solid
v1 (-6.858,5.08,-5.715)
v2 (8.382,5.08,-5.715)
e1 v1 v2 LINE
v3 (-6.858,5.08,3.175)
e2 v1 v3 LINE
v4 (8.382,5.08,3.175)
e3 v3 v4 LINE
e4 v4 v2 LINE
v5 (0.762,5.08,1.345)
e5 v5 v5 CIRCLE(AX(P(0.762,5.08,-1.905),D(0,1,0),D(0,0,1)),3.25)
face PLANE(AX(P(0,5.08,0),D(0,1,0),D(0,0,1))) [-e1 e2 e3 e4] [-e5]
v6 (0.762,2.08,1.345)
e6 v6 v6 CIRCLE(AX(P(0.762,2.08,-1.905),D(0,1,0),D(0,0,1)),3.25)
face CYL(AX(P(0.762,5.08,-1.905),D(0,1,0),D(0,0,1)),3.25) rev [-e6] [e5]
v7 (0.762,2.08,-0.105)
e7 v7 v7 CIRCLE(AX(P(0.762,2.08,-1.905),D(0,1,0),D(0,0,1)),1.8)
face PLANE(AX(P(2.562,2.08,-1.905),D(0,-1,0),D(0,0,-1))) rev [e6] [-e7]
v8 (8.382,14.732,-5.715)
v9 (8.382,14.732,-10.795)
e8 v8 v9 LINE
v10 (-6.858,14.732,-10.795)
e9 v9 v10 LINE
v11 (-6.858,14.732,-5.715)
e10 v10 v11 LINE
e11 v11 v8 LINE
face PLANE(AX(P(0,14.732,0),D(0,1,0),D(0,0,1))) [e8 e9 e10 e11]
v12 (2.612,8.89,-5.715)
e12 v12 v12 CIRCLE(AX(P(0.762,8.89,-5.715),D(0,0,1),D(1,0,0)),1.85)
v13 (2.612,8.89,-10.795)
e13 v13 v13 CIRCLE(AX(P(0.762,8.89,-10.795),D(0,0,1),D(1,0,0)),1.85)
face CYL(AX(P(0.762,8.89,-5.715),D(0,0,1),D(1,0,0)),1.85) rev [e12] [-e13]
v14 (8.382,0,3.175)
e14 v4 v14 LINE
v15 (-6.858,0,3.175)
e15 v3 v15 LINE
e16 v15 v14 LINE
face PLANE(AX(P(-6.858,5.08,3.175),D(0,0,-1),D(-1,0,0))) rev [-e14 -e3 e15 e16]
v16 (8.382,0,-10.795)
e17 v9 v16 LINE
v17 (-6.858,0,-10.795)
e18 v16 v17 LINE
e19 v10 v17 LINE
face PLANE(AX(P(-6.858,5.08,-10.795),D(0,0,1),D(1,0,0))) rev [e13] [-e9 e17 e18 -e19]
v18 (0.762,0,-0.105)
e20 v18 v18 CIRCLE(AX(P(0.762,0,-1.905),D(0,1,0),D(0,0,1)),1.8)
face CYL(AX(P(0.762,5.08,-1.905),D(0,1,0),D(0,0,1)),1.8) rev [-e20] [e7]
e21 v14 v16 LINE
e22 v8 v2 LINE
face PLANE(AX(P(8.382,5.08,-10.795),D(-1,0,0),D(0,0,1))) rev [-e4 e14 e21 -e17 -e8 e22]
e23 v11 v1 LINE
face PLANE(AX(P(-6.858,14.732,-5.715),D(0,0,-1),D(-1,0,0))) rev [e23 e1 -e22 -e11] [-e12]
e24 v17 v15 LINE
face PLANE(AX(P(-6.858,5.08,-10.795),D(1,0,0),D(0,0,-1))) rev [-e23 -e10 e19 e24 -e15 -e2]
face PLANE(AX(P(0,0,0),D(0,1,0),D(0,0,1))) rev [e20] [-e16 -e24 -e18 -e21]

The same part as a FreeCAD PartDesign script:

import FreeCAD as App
import Part
import Sketcher
Q = App.Units.Quantity


def add_polygon(sketch, points):
    """Adds a closed chain of lines whose ends are joined by coincident constraints."""
    first, n = sketch.GeometryCount, len(points)
    for a, b in zip(points, points[1:] + points[:1]):
        sketch.addGeometry(Part.LineSegment(App.Vector(*a, 0), App.Vector(*b, 0)), False)
    for i in range(n):
        sketch.addConstraint(Sketcher.Constraint("Coincident", first + i, 2, first + (i + 1) % n, 1))

doc = App.newDocument("Part")
body = doc.addObject("PartDesign::Body", "Body")

sketch1 = body.newObject("Sketcher::SketchObject", "Sketch")
sketch1.AttachmentSupport = (doc.getObject("XZ_Plane"), [""])
sketch1.MapMode = "FlatFace"
add_polygon(sketch1, [(-7, -11), (-7, 3), (8, 3), (8, -11)])
sketch1.addConstraint([
    Sketcher.Constraint("Vertical", 0),
    Sketcher.Constraint("Horizontal", 1),
    Sketcher.Constraint("Vertical", 2),
    Sketcher.Constraint("Horizontal", 3),
    Sketcher.Constraint("DistanceX", 1, 1, 1, 2, Q("0.6 in")),
    Sketcher.Constraint("DistanceY", 0, 1, 0, 2, Q("0.55 in")),
    Sketcher.Constraint("DistanceX", 0, 2, -1, 1, Q("0.27 in")),
    Sketcher.Constraint("DistanceY", -1, 1, 0, 2, Q("0.125 in")),
])
pad1 = body.newObject("PartDesign::Pad", "Pad")
pad1.Profile = sketch1
pad1.Length = Q("0.2 in")
pad1.Reversed = True

sketch2 = body.newObject("Sketcher::SketchObject", "Sketch001")
sketch2.AttachmentSupport = (doc.getObject("XZ_Plane"), [""])
sketch2.MapMode = "FlatFace"
sketch2.AttachmentOffset = App.Placement(App.Vector(0, 0, -0.2 * 25.4), App.Rotation())
add_polygon(sketch2, [(-7, -11), (-7, -6), (8, -6), (8, -11)])
sketch2.addConstraint([
    Sketcher.Constraint("Vertical", 0),
    Sketcher.Constraint("Horizontal", 1),
    Sketcher.Constraint("Vertical", 2),
    Sketcher.Constraint("Horizontal", 3),
    Sketcher.Constraint("DistanceX", 1, 1, 1, 2, Q("0.6 in")),
    Sketcher.Constraint("DistanceY", 0, 1, 0, 2, Q("0.2 in")),
    Sketcher.Constraint("DistanceX", 0, 2, -1, 1, Q("0.27 in")),
    Sketcher.Constraint("DistanceY", 0, 2, -1, 1, Q("0.225 in")),
])
pad2 = body.newObject("PartDesign::Pad", "Pad001")
pad2.Profile = sketch2
pad2.Length = Q("0.38 in")
pad2.Reversed = True

sketch3 = body.newObject("Sketcher::SketchObject", "Sketch002")
sketch3.AttachmentSupport = (doc.getObject("XY_Plane"), [""])
sketch3.MapMode = "FlatFace"
sketch3.AttachmentOffset = App.Placement(App.Vector(0, 0, -0.225 * 25.4), App.Rotation())
sketch3.addGeometry(Part.Circle(App.Vector(0.8, 8.9, 0), App.Vector(0, 0, 1), 1.9), False)
sketch3.addConstraint([
    Sketcher.Constraint("Diameter", 0, 3.7),
    Sketcher.Constraint("DistanceX", -1, 1, 0, 3, Q("0.03 in")),
    Sketcher.Constraint("DistanceY", -1, 1, 0, 3, Q("0.35 in")),
])
doc.recompute()
hole = body.newObject("PartDesign::Hole", "Hole")
hole.Profile = sketch3
hole.ThreadType = "None"
hole.Diameter = 3.7
hole.DepthType = "Dimension"
hole.Depth = Q("1 in")
hole.DrillPoint = "Angled"
hole.DrillPointAngle = 118

sketch4 = body.newObject("Sketcher::SketchObject", "Sketch003")
sketch4.AttachmentSupport = (doc.getObject("XZ_Plane"), [""])
sketch4.MapMode = "FlatFace"
sketch4.AttachmentOffset = App.Placement(App.Vector(0, 0, -0.2 * 25.4), App.Rotation())
sketch4.addGeometry(Part.Circle(App.Vector(0.8, -1.9, 0), App.Vector(0, 0, 1), 1.8), False)
sketch4.addConstraint([
    Sketcher.Constraint("Diameter", 0, 3.6),
    Sketcher.Constraint("DistanceX", -1, 1, 0, 3, Q("0.03 in")),
    Sketcher.Constraint("DistanceY", 0, 3, -1, 1, Q("0.075 in")),
])
doc.recompute()
hole2 = body.newObject("PartDesign::Hole", "Hole001")
hole2.Profile = sketch4
hole2.ThreadType = "None"
hole2.Diameter = 3.6
hole2.DepthType = "Dimension"
hole2.Depth = Q("1 in")
hole2.DrillPoint = "Angled"
hole2.DrillPointAngle = 118
hole2.HoleCutType = "Counterbore"
hole2.HoleCutDiameter = 6.5
hole2.HoleCutDepth = 3
hole2.Reversed = True

doc.recompute()
